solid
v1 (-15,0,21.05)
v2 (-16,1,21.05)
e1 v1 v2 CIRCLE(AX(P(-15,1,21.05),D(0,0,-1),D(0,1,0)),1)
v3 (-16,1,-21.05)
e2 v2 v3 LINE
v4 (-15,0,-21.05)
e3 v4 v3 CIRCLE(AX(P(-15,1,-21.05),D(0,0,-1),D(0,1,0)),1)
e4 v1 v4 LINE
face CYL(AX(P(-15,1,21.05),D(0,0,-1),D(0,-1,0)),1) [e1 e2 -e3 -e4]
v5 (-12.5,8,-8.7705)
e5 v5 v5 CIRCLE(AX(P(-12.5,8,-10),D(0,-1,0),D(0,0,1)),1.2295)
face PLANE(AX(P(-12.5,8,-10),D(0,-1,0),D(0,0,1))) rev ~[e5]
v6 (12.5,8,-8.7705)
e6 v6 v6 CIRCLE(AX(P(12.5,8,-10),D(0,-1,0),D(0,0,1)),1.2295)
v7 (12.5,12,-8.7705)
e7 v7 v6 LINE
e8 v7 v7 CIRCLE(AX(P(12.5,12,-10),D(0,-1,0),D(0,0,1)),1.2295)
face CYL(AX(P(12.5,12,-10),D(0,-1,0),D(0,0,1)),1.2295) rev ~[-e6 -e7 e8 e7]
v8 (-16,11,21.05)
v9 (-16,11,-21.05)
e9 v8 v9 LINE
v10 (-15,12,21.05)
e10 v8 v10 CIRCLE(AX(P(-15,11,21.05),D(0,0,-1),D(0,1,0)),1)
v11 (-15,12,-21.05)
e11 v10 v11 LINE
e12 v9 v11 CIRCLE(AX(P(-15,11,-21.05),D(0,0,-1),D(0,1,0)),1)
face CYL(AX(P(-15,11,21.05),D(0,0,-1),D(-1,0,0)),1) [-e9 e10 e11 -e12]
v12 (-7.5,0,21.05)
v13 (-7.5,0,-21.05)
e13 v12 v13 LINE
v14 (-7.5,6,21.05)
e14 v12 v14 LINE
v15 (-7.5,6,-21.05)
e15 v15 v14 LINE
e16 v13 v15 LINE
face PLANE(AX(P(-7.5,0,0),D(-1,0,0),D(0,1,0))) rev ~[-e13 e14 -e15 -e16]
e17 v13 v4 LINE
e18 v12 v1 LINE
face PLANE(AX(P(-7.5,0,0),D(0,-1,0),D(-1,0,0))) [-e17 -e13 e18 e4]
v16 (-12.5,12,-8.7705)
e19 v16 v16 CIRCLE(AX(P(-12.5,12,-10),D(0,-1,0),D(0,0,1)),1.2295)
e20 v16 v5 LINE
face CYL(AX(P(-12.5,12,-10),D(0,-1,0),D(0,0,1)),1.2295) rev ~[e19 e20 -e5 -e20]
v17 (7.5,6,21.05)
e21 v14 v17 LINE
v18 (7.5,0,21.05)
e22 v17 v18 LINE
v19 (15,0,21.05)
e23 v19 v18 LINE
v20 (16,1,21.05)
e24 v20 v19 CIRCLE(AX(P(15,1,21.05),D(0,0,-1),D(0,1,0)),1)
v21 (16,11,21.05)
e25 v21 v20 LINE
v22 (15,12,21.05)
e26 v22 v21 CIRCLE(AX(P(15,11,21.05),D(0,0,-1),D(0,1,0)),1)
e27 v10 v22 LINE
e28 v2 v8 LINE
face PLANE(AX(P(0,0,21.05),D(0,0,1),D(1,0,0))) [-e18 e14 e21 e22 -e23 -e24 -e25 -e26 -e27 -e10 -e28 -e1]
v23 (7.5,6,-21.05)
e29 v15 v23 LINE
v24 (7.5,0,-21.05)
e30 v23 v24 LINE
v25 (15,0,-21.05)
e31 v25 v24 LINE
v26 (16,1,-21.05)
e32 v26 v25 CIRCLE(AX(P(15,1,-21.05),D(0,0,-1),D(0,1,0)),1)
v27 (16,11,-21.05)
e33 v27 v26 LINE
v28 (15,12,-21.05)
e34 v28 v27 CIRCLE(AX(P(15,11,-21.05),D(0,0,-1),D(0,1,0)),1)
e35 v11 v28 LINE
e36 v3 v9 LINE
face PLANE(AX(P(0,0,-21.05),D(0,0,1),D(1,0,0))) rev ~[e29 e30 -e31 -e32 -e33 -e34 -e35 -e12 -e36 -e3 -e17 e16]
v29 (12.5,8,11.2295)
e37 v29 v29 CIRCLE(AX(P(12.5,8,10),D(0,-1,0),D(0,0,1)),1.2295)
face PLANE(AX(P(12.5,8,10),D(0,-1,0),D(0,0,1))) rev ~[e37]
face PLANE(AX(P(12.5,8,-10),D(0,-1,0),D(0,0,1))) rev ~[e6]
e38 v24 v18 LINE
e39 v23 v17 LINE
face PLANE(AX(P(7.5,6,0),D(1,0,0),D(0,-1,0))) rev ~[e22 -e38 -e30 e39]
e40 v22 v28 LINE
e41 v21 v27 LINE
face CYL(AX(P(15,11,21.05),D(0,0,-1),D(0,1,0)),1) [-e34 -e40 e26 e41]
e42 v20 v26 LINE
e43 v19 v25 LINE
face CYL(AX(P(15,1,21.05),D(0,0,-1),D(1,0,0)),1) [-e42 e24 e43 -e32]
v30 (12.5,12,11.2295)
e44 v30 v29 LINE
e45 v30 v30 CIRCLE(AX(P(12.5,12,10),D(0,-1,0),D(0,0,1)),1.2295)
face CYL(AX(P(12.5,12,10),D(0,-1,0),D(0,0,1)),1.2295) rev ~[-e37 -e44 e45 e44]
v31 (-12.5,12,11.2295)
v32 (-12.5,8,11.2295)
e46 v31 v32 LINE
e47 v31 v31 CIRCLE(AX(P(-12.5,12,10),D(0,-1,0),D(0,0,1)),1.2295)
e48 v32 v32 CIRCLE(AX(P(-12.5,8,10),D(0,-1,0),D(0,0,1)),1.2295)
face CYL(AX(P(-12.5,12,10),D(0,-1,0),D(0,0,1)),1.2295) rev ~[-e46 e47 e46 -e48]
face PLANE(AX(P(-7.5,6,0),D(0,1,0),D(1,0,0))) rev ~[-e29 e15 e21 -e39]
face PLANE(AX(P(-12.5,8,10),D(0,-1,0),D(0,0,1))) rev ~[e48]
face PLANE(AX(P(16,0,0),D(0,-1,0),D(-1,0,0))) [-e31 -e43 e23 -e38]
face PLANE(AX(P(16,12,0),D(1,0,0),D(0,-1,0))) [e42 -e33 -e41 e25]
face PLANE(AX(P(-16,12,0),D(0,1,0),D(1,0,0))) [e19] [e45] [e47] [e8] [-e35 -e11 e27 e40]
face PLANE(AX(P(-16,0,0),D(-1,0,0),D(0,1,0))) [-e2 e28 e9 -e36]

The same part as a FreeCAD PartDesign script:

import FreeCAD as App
import Part
import Sketcher
from FreeCAD import Vector


def edges_at(feature, points):
    """Names of the edges that pass closest to the given points."""
    edges = feature.Shape.Edges
    near = lambda p: min(range(len(edges)), key=lambda i: edges[i].distToShape(Part.Vertex(*p))[0])
    return sorted({f"Edge{near(p) + 1}" for p in points})


def add_polygon(sketch, points):
    """Adds a closed chain of lines whose ends are joined by coincident constraints."""
    first, n = sketch.GeometryCount, len(points)
    for a, b in zip(points, points[1:] + points[:1]):
        sketch.addGeometry(Part.LineSegment(App.Vector(*a, 0), App.Vector(*b, 0)), False)
    for i in range(n):
        sketch.addConstraint(Sketcher.Constraint("Coincident", first + i, 2, first + (i + 1) % n, 1))

doc = App.newDocument("Part")
body = doc.addObject("PartDesign::Body", "Body")

sketch1 = body.newObject("Sketcher::SketchObject", "Sketch")
sketch1.AttachmentSupport = (doc.getObject("XY_Plane"), [""])
sketch1.MapMode = "FlatFace"
add_polygon(sketch1, [(-7.5, 0), (-7.5, 6), (7.5, 6), (7.5, 0), (16, 0), (16, 12), (-16, 12), (-16, 0)])
sketch1.addConstraint([
    Sketcher.Constraint("Vertical", 0),
    Sketcher.Constraint("Horizontal", 1),
    Sketcher.Constraint("Vertical", 2),
    Sketcher.Constraint("Horizontal", 3),
    Sketcher.Constraint("Vertical", 4),
    Sketcher.Constraint("Horizontal", 5),
    Sketcher.Constraint("Vertical", 6),
    Sketcher.Constraint("Horizontal", 7),
    Sketcher.Constraint("Symmetric", 3, 2, 6, 2, -1, 1),
    Sketcher.Constraint("Symmetric", 2, 2, 7, 2, -2),
    Sketcher.Constraint("DistanceX", 1, 1, 1, 2, 15.0),
    Sketcher.Constraint("DistanceX", 5, 2, 5, 1, 32.0),
    Sketcher.Constraint("DistanceY", 0, 1, 0, 2, 6.0),
    Sketcher.Constraint("DistanceY", 4, 1, 4, 2, 12.0),
])
pad1 = body.newObject("PartDesign::Pad", "Pad")
pad1.Profile = sketch1
pad1.Length = 42.1
pad1.Midplane = True

sketch2 = body.newObject("Sketcher::SketchObject", "Sketch001")
sketch2.AttachmentSupport = (doc.getObject("XZ_Plane"), [""])
sketch2.MapMode = "FlatFace"
sketch2.AttachmentOffset = App.Placement(Vector(0, 0, -12), App.Rotation())
sketch2.addGeometry([
    Part.Circle(Vector(-12.5, 10, 0), Vector(0, 0, 1), 1.2295),
    Part.Circle(Vector(12.5, 10, 0), Vector(0, 0, 1), 1.2295),
    Part.Circle(Vector(12.5, -10, 0), Vector(0, 0, 1), 1.2295),
    Part.Circle(Vector(-12.5, -10, 0), Vector(0, 0, 1), 1.2295),
], False)
sketch2.addConstraint([
    Sketcher.Constraint("Equal", 0, 1),
    Sketcher.Constraint("Equal", 1, 2),
    Sketcher.Constraint("Equal", 2, 3),
    Sketcher.Constraint("Symmetric", 0, 3, 2, 3, -1, 1),
    Sketcher.Constraint("Symmetric", 1, 3, 3, 3, -1, 1),
    Sketcher.Constraint("Symmetric", 0, 3, 1, 3, -2),
    Sketcher.Constraint("Diameter", 0, 2.459),
    Sketcher.Constraint("DistanceY", -1, 1, 0, 3, 10.0),
    Sketcher.Constraint("DistanceX", 0, 3, 1, 3, 25.0),
])
doc.recompute()
hole = body.newObject("PartDesign::Hole", "Hole")
hole.Profile = sketch2
hole.ThreadType = "None"
hole.Diameter = 2.459
hole.DepthType = "Dimension"
hole.Depth = 4
hole.DrillPoint = "Flat"
hole.Reversed = True
doc.recompute()

fillet = body.newObject("PartDesign::Fillet", "Fillet")
fillet.Base = (hole, edges_at(hole, [
    (16, 12, 0),
    (-16, 12, 0),
    (16, 0, 0),
    (-16, 0, 0),
]))
fillet.Radius = 1

doc.recompute()
